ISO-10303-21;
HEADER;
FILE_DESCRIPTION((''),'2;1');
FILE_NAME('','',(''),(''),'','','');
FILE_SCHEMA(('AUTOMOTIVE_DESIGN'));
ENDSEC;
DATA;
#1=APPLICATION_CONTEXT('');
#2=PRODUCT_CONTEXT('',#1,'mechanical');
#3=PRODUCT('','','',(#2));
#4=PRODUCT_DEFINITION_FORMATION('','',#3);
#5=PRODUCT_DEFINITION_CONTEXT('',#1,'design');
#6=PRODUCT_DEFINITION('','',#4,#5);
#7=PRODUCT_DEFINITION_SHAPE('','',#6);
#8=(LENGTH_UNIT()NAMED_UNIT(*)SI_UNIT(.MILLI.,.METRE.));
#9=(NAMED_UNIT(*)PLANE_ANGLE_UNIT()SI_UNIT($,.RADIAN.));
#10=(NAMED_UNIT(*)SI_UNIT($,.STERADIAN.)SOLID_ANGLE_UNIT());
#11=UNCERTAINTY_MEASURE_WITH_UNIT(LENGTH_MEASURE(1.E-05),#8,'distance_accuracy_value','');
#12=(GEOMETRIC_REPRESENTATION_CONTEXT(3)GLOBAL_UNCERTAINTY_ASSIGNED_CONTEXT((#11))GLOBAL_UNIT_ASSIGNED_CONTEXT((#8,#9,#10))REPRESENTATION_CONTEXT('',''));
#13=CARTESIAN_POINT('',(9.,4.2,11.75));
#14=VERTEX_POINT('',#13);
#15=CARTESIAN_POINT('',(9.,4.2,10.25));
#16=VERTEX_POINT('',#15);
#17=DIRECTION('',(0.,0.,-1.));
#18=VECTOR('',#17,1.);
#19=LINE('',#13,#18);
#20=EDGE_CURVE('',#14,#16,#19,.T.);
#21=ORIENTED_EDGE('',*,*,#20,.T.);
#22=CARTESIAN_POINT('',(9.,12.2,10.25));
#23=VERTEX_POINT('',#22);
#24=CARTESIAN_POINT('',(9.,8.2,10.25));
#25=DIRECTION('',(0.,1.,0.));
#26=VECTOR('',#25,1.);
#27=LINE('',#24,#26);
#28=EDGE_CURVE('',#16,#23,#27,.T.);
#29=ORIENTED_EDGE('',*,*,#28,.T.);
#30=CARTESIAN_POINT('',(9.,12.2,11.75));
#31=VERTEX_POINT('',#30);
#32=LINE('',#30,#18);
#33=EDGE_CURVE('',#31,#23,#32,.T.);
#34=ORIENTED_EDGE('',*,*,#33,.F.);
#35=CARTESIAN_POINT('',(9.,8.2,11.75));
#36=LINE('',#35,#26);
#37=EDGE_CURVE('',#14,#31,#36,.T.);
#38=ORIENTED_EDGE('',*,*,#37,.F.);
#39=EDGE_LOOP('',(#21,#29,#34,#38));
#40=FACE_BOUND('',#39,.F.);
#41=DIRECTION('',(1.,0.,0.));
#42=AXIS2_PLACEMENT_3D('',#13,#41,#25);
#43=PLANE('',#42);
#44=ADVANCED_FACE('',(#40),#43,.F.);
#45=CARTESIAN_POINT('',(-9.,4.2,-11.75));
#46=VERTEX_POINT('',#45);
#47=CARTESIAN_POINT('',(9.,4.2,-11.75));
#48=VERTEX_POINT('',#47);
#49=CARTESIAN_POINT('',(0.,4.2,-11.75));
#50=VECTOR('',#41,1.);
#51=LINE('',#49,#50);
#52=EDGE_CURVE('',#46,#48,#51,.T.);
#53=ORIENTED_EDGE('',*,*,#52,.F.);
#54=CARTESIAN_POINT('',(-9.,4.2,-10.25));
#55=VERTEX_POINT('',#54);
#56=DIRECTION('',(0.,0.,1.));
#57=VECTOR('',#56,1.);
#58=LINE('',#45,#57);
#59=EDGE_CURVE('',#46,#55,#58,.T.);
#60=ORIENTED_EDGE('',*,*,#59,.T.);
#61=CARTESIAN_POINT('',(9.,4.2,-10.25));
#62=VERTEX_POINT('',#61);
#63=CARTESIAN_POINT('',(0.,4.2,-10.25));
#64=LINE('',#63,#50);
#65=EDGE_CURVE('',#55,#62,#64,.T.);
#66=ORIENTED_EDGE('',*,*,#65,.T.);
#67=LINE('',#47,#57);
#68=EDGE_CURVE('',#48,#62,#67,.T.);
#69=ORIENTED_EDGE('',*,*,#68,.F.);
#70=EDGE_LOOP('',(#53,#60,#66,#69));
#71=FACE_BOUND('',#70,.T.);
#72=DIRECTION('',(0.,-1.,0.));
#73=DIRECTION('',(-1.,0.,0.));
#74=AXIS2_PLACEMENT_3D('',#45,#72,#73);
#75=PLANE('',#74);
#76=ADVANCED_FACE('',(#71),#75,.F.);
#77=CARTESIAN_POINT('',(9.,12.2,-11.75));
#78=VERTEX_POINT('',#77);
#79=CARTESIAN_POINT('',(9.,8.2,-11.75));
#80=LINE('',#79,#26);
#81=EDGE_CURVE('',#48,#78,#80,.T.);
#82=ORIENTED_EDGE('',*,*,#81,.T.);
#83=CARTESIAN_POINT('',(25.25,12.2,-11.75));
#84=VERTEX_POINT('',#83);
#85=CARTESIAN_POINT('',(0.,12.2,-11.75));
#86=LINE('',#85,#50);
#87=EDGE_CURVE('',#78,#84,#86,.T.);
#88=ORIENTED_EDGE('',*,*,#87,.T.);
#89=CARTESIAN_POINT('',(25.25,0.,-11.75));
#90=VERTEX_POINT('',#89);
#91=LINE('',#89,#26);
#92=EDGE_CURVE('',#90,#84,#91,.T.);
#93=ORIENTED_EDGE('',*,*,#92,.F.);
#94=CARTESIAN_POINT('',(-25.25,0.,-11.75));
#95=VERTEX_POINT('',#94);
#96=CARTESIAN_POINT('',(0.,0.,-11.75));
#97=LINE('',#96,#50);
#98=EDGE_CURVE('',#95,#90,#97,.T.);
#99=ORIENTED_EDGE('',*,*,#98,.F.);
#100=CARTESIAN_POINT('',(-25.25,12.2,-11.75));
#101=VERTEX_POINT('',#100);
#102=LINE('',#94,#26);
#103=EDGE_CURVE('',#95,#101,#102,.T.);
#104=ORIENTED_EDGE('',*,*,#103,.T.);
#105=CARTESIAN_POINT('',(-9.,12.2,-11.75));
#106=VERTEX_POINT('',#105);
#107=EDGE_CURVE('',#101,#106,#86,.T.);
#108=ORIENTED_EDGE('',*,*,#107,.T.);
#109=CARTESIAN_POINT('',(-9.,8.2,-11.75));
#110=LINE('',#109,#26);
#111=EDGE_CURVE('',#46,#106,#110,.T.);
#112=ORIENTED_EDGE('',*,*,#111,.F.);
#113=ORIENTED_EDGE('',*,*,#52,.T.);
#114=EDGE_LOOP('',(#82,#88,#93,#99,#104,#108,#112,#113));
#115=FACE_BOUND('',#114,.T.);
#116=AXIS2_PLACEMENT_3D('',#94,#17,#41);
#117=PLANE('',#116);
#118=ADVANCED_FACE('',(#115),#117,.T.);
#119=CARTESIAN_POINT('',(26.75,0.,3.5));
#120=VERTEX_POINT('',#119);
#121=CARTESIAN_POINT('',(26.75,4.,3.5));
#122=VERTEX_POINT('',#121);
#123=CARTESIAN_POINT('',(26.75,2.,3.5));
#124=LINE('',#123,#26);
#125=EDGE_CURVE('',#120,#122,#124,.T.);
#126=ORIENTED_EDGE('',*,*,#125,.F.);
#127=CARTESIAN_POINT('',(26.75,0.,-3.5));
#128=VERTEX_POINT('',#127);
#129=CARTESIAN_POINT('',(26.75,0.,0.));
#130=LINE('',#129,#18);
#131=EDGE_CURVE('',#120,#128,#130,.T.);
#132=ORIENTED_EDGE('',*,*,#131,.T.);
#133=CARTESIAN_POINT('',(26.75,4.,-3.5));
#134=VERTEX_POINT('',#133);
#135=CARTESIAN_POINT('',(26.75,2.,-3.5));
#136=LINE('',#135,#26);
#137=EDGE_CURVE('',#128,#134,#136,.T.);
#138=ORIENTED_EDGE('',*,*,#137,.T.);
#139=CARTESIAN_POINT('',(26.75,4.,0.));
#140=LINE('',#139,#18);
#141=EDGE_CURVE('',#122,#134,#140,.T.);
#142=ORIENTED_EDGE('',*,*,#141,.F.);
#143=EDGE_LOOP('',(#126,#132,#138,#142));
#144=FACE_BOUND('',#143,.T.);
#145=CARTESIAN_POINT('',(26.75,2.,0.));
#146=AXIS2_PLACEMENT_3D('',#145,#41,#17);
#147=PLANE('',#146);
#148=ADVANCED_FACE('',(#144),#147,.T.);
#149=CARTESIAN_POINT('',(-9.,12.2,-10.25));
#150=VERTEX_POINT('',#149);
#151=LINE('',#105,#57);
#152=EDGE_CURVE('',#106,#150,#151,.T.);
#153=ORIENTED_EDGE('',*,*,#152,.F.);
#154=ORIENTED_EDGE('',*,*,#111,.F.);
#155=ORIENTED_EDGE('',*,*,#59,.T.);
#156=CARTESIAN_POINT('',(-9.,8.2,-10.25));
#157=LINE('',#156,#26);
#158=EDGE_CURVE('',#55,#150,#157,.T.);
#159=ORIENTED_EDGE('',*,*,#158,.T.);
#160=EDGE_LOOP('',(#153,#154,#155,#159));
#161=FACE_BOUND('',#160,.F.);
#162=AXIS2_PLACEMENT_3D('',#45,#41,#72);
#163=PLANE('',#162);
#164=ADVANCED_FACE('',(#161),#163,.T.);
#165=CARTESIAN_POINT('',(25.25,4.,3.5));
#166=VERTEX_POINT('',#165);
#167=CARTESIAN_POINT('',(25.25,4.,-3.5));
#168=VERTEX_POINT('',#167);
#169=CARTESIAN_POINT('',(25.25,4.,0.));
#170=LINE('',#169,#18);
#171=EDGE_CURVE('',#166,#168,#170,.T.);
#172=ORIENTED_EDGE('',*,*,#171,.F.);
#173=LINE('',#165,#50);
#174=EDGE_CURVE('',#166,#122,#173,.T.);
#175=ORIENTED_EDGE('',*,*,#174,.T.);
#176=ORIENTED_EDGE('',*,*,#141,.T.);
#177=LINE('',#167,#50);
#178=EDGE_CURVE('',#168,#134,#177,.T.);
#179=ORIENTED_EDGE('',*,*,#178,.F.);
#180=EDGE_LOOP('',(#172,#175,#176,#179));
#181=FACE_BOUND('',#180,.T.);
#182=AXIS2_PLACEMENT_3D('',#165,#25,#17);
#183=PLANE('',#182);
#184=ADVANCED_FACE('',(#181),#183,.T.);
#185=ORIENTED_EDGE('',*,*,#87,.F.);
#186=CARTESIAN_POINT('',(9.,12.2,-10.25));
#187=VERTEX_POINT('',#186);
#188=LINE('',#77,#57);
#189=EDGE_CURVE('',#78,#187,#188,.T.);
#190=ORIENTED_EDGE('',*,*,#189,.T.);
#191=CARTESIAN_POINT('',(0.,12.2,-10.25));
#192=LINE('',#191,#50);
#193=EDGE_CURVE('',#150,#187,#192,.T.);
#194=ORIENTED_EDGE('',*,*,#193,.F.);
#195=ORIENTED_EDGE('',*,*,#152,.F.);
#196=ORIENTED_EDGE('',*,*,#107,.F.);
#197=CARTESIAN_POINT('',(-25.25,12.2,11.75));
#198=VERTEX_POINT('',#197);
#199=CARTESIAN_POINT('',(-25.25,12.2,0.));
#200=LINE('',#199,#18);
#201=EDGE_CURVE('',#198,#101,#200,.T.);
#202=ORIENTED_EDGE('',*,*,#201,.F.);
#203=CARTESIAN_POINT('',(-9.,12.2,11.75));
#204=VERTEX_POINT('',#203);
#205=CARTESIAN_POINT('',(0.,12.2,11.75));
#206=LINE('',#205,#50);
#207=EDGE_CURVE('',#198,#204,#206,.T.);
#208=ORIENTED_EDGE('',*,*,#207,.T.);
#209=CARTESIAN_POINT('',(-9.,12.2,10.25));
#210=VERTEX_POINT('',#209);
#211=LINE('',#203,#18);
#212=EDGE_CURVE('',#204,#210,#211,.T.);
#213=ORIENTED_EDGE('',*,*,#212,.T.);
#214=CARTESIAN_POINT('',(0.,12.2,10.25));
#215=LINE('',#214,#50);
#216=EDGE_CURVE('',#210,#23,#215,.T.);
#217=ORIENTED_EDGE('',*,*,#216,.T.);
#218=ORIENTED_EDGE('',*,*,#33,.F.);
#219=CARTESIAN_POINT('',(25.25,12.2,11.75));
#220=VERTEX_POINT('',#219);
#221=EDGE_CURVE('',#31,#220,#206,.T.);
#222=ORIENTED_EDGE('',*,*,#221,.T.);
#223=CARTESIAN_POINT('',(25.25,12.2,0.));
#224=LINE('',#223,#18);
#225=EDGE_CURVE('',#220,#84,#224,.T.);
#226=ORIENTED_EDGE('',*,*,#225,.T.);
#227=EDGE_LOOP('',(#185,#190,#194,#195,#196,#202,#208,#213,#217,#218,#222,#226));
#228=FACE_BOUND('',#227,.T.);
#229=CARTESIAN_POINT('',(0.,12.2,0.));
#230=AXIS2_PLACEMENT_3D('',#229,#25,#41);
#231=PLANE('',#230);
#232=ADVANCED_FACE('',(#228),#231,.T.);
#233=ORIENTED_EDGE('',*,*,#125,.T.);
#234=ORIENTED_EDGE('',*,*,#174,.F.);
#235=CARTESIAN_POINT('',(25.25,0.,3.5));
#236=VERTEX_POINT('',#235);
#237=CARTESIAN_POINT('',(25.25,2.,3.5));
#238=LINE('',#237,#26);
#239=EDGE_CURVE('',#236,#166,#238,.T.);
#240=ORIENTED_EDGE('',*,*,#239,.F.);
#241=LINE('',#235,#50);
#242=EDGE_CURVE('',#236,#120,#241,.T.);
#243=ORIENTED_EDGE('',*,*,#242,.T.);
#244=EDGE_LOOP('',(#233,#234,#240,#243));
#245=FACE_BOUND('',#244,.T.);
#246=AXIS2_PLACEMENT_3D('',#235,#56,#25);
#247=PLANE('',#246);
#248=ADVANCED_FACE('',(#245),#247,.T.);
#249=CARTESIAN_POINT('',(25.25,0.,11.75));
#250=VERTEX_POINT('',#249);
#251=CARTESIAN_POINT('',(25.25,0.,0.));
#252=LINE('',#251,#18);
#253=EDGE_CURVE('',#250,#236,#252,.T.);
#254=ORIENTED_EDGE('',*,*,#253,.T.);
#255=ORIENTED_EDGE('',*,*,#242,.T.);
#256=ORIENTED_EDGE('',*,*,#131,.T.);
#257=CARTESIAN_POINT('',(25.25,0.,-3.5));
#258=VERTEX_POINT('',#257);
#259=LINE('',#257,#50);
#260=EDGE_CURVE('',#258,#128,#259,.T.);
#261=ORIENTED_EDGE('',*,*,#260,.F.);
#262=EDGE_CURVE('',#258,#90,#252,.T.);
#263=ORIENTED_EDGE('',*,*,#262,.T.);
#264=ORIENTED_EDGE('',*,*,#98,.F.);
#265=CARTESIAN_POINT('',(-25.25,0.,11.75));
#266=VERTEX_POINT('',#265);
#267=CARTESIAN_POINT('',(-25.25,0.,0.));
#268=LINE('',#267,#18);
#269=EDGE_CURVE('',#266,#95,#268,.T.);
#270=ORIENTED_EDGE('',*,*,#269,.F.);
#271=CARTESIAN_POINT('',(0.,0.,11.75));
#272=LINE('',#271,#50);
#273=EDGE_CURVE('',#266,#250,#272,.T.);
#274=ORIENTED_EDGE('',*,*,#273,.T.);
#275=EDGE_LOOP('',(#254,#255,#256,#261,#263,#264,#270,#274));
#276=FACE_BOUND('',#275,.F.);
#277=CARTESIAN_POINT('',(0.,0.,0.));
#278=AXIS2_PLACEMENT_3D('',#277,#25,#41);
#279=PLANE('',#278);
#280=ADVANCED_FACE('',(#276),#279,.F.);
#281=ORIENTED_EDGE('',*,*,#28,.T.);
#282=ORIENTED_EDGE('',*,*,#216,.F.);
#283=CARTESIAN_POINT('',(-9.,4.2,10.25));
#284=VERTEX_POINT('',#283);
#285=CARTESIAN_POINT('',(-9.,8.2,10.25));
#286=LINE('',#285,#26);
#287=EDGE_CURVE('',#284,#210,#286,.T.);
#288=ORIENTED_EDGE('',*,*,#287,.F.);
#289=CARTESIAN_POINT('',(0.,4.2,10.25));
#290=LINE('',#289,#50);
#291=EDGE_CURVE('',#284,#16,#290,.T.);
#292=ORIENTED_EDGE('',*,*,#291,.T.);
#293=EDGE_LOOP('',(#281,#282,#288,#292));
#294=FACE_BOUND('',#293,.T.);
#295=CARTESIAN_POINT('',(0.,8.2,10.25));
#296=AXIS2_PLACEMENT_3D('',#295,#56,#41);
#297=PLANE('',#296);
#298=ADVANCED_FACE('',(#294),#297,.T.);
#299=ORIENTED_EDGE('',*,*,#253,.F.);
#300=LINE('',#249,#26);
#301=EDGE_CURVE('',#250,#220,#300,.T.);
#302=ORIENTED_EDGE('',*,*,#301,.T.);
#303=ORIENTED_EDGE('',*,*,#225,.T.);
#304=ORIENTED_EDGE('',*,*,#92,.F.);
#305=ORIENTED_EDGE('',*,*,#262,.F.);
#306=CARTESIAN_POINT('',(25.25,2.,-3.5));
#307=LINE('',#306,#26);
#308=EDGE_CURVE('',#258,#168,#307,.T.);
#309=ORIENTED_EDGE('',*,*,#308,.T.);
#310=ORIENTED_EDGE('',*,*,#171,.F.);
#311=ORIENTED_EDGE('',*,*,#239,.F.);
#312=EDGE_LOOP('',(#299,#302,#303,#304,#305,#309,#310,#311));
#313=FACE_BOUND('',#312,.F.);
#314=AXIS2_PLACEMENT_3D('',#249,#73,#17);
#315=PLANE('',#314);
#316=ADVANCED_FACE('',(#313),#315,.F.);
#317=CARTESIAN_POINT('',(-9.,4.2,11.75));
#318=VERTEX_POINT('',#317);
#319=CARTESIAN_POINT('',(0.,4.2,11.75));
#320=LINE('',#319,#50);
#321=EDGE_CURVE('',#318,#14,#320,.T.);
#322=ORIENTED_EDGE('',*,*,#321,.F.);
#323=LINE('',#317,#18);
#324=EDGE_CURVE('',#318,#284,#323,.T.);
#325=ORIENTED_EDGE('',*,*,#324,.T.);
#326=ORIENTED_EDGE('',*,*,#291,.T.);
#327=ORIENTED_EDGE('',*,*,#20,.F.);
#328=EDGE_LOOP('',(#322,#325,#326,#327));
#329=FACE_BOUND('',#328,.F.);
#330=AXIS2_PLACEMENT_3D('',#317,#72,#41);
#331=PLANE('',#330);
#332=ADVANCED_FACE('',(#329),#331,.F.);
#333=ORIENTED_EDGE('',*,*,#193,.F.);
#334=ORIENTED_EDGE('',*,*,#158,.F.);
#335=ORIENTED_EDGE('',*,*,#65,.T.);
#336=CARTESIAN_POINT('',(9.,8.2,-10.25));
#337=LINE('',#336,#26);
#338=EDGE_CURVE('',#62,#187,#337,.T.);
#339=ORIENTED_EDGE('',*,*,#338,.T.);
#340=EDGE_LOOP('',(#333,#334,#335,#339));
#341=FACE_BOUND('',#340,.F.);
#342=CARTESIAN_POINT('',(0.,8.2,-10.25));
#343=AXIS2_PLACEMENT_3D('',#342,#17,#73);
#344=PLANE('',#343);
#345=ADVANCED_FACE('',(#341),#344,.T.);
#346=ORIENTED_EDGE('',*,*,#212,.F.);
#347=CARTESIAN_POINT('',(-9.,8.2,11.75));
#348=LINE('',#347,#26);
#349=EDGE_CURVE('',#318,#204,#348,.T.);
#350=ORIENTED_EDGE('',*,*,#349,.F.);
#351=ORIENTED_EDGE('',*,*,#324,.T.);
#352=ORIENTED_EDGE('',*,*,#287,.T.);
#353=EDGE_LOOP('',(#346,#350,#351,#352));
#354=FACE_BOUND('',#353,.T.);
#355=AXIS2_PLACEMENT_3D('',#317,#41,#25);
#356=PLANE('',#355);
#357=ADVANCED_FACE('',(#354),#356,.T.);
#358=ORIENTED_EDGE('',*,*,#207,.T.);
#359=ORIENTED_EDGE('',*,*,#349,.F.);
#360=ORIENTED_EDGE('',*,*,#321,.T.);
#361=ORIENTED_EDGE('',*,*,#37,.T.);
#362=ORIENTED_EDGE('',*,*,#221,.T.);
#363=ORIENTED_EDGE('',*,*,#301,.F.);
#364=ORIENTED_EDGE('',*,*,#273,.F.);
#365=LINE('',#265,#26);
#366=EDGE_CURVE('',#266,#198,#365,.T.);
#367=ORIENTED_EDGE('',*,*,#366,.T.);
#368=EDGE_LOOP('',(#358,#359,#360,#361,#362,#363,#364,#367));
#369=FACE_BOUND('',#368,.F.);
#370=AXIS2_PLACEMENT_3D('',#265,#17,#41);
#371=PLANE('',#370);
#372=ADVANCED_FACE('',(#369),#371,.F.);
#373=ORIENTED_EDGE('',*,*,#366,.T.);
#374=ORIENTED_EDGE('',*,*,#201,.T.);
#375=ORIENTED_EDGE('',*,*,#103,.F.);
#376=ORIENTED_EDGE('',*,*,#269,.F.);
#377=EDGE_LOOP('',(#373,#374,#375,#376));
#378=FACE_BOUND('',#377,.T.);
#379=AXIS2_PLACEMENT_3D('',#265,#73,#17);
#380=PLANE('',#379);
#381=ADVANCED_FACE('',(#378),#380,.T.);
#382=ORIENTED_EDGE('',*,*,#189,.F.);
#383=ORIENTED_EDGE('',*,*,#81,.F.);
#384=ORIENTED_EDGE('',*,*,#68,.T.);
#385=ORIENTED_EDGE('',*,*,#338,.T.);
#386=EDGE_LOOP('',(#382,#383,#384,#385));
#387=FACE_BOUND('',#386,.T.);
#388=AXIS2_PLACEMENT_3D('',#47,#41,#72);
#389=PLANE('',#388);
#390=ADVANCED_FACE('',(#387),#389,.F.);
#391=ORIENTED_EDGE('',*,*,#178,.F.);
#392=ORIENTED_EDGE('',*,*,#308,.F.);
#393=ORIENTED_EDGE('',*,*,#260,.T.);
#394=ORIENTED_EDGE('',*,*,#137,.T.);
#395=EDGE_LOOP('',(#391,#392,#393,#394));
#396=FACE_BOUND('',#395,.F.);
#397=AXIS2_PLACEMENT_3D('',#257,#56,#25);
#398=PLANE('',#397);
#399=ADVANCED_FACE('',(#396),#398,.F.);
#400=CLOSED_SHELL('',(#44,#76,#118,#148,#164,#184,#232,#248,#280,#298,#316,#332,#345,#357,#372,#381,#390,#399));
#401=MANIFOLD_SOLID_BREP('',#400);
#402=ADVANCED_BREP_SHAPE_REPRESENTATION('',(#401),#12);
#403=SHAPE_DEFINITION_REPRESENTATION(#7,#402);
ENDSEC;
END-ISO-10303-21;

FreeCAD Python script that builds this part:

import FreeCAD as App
import Part
import Sketcher
Q = App.Units.Quantity

doc = App.newDocument("Part")
body = doc.addObject("PartDesign::Body", "Body")

# Sketch on XZ plane
sketch1 = body.newObject("Sketcher::SketchObject", "Sketch")
sketch1.AttachmentSupport = (doc.getObject("XZ_Plane"), [""])
sketch1.MapMode = "FlatFace"
sketch1.addGeometry([
    Part.LineSegment(App.Vector(-25, -12, 0), App.Vector(-25, 12, 0)),
    Part.LineSegment(App.Vector(-25, 12, 0), App.Vector(25, 12, 0)),
    Part.LineSegment(App.Vector(25, 12, 0), App.Vector(25, -12, 0)),
    Part.LineSegment(App.Vector(25, -12, 0), App.Vector(-25, -12, 0)),
], False)
sketch1.addConstraint([
    Sketcher.Constraint("Coincident", 0, 2, 1, 1),
    Sketcher.Constraint("Coincident", 1, 2, 2, 1),
    Sketcher.Constraint("Coincident", 2, 2, 3, 1),
    Sketcher.Constraint("Coincident", 3, 2, 0, 1),
    Sketcher.Constraint("Vertical", 0),
    Sketcher.Constraint("Horizontal", 1),
    Sketcher.Constraint("Vertical", 2),
    Sketcher.Constraint("Horizontal", 3),
    Sketcher.Constraint("Symmetric", 0, 2, 2, 2, -1, 1),
    Sketcher.Constraint("DistanceX", 1, 1, 1, 2, Q("50.5 mm")),
    Sketcher.Constraint("DistanceY", 0, 1, 0, 2, Q("23.5 mm")),
])
pad1 = body.newObject("PartDesign::Pad", "Pad")
pad1.Profile = sketch1
pad1.Length = 12.2
pad1.Reversed = True

# Sketch on YZ plane
sketch2 = body.newObject("Sketcher::SketchObject", "Sketch001")
sketch2.AttachmentSupport = (doc.getObject("YZ_Plane"), [""])
sketch2.MapMode = "FlatFace"
sketch2.AttachmentOffset = App.Placement(App.Vector(0, 0, 25.25), App.Rotation())
sketch2.addGeometry([
    Part.LineSegment(App.Vector(4, 3.5, 0), App.Vector(0, 3.5, 0)),
    Part.LineSegment(App.Vector(0, 3.5, 0), App.Vector(0, -3.5, 0)),
    Part.LineSegment(App.Vector(0, -3.5, 0), App.Vector(4, -3.5, 0)),
    Part.LineSegment(App.Vector(4, -3.5, 0), App.Vector(4, 3.5, 0)),
], False)
sketch2.addConstraint([
    Sketcher.Constraint("Coincident", 0, 2, 1, 1),
    Sketcher.Constraint("Coincident", 1, 2, 2, 1),
    Sketcher.Constraint("Coincident", 2, 2, 3, 1),
    Sketcher.Constraint("Coincident", 3, 2, 0, 1),
    Sketcher.Constraint("Horizontal", 0),
    Sketcher.Constraint("Vertical", 1),
    Sketcher.Constraint("Horizontal", 2),
    Sketcher.Constraint("Vertical", 3),
    Sketcher.Constraint("Symmetric", 0, 2, 1, 2, -1, 1),
    Sketcher.Constraint("DistanceX", 0, 2, 0, 1, Q("4 mm")),
    Sketcher.Constraint("DistanceY", 1, 2, 1, 1, Q("7 mm")),
])
pad2 = body.newObject("PartDesign::Pad", "Pad001")
pad2.Profile = sketch2
pad2.Length = 1.5

# Sketch on XY plane
sketch3 = body.newObject("Sketcher::SketchObject", "Sketch002")
sketch3.AttachmentSupport = (doc.getObject("XY_Plane"), [""])
sketch3.MapMode = "FlatFace"
sketch3.AttachmentOffset = App.Placement(App.Vector(0, 0, 11.75), App.Rotation())
sketch3.addGeometry([
    Part.LineSegment(App.Vector(-9, 12, 0), App.Vector(-9, 4, 0)),
    Part.LineSegment(App.Vector(-9, 4, 0), App.Vector(9, 4, 0)),
    Part.LineSegment(App.Vector(9, 4, 0), App.Vector(9, 12, 0)),
    Part.LineSegment(App.Vector(9, 12, 0), App.Vector(-9, 12, 0)),
], False)
sketch3.addConstraint([
    Sketcher.Constraint("Coincident", 0, 2, 1, 1),
    Sketcher.Constraint("Coincident", 1, 2, 2, 1),
    Sketcher.Constraint("Coincident", 2, 2, 3, 1),
    Sketcher.Constraint("Coincident", 3, 2, 0, 1),
    Sketcher.Constraint("Vertical", 0),
    Sketcher.Constraint("Horizontal", 1),
    Sketcher.Constraint("Vertical", 2),
    Sketcher.Constraint("Horizontal", 3),
    Sketcher.Constraint("DistanceX", 1, 1, 1, 2, Q("18 mm")),
    Sketcher.Constraint("DistanceY", 0, 2, 0, 1, Q("8 mm")),
    Sketcher.Constraint("DistanceX", 0, 2, -1, 1, Q("9 mm")),
    Sketcher.Constraint("DistanceY", -1, 1, 0, 2, Q("4.2 mm")),
])
pocket1 = body.newObject("PartDesign::Pocket", "Pocket")
pocket1.Profile = sketch3
pocket1.Length = 1.5
doc.recompute()

mirrored = body.newObject("PartDesign::Mirrored", "Mirrored")
mirrored.Originals = [pocket1]
mirrored.MirrorPlane = (doc.getObject("XY_Plane"), [""])
body.Tip = mirrored

doc.recompute()
